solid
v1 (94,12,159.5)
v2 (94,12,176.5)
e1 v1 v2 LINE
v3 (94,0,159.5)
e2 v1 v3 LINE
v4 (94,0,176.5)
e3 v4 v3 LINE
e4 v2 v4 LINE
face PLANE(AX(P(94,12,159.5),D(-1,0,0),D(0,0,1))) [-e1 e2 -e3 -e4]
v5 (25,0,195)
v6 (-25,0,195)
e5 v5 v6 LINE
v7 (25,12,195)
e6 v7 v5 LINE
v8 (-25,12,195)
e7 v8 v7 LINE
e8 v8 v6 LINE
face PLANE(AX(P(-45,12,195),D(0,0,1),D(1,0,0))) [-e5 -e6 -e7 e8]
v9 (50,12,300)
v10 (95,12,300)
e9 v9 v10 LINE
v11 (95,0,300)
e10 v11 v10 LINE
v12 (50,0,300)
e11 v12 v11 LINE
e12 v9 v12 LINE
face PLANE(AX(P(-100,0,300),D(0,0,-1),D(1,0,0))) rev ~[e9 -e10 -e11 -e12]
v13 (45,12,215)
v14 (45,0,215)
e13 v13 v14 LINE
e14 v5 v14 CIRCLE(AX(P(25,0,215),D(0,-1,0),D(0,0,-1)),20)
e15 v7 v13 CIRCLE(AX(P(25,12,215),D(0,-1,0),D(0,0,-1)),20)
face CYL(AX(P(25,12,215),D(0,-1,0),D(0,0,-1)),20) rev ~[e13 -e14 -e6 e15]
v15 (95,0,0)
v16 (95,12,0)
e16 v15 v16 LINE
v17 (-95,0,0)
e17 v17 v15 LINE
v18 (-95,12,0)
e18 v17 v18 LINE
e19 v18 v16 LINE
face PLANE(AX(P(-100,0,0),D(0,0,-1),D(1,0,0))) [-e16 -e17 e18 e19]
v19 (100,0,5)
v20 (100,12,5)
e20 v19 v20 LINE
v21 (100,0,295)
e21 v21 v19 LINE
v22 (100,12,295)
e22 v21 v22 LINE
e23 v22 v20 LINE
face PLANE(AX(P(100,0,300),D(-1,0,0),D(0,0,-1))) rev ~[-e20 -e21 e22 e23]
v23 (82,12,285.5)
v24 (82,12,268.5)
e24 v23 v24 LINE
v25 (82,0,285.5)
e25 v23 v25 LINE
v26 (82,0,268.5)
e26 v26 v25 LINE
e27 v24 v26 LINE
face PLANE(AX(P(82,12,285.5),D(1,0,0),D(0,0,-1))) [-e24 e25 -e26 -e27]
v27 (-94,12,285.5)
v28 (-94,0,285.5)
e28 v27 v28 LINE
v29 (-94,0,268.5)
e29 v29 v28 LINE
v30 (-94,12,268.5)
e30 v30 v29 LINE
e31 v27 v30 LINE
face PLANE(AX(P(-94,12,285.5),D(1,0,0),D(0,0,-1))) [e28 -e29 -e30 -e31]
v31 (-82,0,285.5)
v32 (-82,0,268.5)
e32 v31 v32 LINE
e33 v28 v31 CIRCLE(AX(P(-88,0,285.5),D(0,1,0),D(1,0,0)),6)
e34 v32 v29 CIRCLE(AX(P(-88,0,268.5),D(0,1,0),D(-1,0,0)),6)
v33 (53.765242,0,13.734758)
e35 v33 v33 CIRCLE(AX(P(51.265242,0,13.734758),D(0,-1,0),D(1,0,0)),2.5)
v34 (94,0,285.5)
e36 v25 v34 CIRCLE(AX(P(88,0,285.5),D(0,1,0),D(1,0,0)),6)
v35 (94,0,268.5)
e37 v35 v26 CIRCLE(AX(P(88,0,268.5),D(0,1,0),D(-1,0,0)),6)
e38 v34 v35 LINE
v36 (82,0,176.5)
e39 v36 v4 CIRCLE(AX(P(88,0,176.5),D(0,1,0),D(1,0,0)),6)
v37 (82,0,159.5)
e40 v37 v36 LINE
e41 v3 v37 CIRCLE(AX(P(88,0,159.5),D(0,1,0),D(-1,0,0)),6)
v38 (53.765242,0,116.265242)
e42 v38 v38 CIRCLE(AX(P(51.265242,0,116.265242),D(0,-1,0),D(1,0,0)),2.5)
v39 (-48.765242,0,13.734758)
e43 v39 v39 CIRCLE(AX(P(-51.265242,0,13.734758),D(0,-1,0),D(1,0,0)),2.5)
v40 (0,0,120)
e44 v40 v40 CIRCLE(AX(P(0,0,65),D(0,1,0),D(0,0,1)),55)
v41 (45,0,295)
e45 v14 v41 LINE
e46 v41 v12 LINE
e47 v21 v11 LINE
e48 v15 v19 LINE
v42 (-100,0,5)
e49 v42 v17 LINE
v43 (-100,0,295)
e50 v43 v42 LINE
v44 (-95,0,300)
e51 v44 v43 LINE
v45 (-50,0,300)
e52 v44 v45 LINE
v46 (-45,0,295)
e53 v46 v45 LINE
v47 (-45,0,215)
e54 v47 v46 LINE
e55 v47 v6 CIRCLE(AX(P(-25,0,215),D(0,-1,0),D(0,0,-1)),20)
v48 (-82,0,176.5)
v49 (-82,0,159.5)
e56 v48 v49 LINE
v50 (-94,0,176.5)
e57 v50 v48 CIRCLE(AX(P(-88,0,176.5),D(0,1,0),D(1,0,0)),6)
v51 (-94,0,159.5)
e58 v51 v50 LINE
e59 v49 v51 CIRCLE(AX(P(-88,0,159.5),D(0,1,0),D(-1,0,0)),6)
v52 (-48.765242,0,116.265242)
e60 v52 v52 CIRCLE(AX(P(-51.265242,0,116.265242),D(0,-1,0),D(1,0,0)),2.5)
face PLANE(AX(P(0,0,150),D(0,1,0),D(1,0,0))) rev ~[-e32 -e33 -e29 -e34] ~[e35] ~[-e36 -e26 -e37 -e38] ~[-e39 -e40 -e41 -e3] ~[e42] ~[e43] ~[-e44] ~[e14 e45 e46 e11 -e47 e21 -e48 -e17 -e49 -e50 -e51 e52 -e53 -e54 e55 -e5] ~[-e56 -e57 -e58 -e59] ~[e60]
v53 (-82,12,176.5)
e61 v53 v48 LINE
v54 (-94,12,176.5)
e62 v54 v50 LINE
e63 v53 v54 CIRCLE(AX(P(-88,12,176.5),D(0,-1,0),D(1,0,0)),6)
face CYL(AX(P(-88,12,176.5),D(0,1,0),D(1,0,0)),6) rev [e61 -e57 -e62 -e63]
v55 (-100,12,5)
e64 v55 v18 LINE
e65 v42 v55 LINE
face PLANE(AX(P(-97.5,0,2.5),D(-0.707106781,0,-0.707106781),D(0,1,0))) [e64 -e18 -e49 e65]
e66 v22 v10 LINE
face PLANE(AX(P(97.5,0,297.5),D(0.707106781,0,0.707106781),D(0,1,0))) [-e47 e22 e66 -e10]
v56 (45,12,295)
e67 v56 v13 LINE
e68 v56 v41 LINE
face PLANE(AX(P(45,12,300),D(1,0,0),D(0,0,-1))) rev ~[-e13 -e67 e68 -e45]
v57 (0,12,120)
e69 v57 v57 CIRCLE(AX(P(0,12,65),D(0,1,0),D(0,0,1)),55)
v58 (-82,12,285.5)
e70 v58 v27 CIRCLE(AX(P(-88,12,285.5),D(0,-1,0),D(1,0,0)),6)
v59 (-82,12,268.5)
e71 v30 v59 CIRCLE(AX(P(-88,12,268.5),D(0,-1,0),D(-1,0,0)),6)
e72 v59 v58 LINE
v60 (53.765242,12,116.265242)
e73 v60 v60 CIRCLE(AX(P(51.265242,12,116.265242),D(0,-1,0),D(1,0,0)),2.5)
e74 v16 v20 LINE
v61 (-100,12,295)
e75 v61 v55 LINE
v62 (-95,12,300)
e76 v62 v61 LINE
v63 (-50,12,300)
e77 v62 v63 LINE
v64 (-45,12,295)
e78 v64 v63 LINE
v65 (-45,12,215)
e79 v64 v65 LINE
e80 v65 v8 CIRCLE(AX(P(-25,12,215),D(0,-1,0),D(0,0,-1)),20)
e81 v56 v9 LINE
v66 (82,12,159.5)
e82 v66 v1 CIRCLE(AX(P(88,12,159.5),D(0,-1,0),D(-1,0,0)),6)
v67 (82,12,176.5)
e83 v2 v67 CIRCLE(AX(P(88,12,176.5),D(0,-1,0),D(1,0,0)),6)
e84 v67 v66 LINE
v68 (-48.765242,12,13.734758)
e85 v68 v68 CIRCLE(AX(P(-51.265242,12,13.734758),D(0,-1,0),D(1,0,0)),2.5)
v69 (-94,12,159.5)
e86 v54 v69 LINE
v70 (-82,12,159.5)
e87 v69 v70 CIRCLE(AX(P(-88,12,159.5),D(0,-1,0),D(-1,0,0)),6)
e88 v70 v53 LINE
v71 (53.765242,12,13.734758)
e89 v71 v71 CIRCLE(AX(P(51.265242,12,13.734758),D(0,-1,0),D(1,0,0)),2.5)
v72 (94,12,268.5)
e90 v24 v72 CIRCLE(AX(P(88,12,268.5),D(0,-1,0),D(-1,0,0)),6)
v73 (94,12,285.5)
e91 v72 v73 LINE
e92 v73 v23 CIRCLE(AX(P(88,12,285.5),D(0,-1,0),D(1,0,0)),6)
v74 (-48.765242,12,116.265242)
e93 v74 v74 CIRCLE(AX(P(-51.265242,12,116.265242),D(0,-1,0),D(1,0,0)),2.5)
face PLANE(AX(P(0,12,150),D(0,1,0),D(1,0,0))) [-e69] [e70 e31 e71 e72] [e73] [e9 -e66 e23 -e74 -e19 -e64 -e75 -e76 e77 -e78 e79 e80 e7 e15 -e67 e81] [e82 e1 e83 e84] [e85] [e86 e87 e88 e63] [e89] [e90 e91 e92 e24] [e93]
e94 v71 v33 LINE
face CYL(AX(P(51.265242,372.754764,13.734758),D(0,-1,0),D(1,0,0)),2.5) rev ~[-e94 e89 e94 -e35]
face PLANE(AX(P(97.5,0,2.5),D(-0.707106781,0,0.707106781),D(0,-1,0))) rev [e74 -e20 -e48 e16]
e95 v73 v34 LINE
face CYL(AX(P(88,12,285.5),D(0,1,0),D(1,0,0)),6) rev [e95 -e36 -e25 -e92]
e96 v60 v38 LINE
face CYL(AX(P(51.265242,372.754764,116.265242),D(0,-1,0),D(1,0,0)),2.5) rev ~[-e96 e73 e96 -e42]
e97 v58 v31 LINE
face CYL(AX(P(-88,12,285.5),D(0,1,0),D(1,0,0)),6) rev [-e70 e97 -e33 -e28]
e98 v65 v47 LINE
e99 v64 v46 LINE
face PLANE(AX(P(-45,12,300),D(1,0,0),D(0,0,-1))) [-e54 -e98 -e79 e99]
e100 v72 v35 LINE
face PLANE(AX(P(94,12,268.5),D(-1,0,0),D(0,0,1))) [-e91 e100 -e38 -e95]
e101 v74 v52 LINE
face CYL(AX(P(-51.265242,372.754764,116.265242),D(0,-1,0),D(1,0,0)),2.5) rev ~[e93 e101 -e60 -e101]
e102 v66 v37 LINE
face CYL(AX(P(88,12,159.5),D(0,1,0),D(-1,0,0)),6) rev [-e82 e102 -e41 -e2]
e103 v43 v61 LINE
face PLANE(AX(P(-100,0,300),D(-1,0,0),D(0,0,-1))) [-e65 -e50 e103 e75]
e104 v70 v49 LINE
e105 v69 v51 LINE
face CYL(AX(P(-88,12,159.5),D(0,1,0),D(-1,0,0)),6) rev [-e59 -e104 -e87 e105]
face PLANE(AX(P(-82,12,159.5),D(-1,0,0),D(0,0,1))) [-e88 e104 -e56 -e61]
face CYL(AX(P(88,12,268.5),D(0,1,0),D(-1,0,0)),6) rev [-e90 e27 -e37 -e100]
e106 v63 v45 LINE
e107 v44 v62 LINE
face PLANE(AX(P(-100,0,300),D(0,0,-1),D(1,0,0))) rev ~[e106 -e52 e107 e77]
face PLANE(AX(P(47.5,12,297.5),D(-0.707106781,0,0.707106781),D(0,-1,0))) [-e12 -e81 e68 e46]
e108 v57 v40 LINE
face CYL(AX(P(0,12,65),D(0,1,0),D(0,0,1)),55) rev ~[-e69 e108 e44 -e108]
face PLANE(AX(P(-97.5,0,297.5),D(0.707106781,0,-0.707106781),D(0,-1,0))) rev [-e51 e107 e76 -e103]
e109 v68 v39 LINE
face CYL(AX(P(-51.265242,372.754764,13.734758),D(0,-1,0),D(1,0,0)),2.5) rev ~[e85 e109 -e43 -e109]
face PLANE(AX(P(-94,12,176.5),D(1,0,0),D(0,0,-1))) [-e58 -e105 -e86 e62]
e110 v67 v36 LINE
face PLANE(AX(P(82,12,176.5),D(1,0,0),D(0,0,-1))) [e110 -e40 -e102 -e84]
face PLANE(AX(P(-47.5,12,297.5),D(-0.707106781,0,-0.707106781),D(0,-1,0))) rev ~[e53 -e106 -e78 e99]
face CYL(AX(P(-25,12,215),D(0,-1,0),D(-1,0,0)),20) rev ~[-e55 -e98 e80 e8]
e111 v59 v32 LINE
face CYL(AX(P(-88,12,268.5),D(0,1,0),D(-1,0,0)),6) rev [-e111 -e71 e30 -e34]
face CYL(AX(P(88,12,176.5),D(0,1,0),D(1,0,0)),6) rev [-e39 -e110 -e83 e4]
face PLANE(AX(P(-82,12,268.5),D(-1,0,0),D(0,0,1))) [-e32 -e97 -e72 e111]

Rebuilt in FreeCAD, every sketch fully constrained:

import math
import FreeCAD as App
import Part
import Sketcher
Q = App.Units.Quantity


def edges_at(feature, points):
    """Names of the edges that pass closest to the given points."""
    edges = feature.Shape.Edges
    near = lambda p: min(range(len(edges)), key=lambda i: edges[i].distToShape(Part.Vertex(*p))[0])
    return sorted({f"Edge{near(p) + 1}" for p in points})

doc = App.newDocument("Part")
body = doc.addObject("PartDesign::Body", "Body")

# Sketch on XZ plane
sketch1 = body.newObject("Sketcher::SketchObject", "Sketch")
sketch1.AttachmentSupport = (doc.getObject("XZ_Plane"), [""])
sketch1.MapMode = "FlatFace"
sketch1.addGeometry([
    Part.LineSegment(App.Vector(-100, 0, 0), App.Vector(-100, 300, 0)),
    Part.LineSegment(App.Vector(-100, 300, 0), App.Vector(100, 300, 0)),
    Part.LineSegment(App.Vector(100, 300, 0), App.Vector(100, 0, 0)),
    Part.LineSegment(App.Vector(100, 0, 0), App.Vector(-100, 0, 0)),
], False)
sketch1.addConstraint([
    Sketcher.Constraint("Coincident", 0, 2, 1, 1),
    Sketcher.Constraint("Coincident", 1, 2, 2, 1),
    Sketcher.Constraint("Coincident", 2, 2, 3, 1),
    Sketcher.Constraint("Coincident", 3, 2, 0, 1),
    Sketcher.Constraint("Vertical", 0),
    Sketcher.Constraint("Horizontal", 1),
    Sketcher.Constraint("Vertical", 2),
    Sketcher.Constraint("Horizontal", 3),
    Sketcher.Constraint("Symmetric", 2, 2, 3, 2, -1, 1),
    Sketcher.Constraint("DistanceX", 1, 1, 1, 2, Q("200 mm")),
    Sketcher.Constraint("DistanceY", 0, 1, 0, 2, Q("300 mm")),
])
pad1 = body.newObject("PartDesign::Pad", "Pad")
pad1.Profile = sketch1
pad1.Length = 12
pad1.Reversed = True

# Sketch on XZ plane
sketch2 = body.newObject("Sketcher::SketchObject", "Sketch001")
sketch2.AttachmentSupport = (doc.getObject("XZ_Plane"), [""])
sketch2.MapMode = "FlatFace"
sketch2.AttachmentOffset = App.Placement(App.Vector(0, 0, -12), App.Rotation())
sketch2.addGeometry([
    Part.LineSegment(App.Vector(-45, 195, 0), App.Vector(-45, 300, 0)),
    Part.LineSegment(App.Vector(-45, 300, 0), App.Vector(45, 300, 0)),
    Part.LineSegment(App.Vector(45, 300, 0), App.Vector(45, 195, 0)),
    Part.LineSegment(App.Vector(45, 195, 0), App.Vector(-45, 195, 0)),
], False)
sketch2.addConstraint([
    Sketcher.Constraint("Coincident", 0, 2, 1, 1),
    Sketcher.Constraint("Coincident", 1, 2, 2, 1),
    Sketcher.Constraint("Coincident", 2, 2, 3, 1),
    Sketcher.Constraint("Coincident", 3, 2, 0, 1),
    Sketcher.Constraint("Vertical", 0),
    Sketcher.Constraint("Horizontal", 1),
    Sketcher.Constraint("Vertical", 2),
    Sketcher.Constraint("Horizontal", 3),
    Sketcher.Constraint("DistanceX", 1, 1, 1, 2, Q("90 mm")),
    Sketcher.Constraint("DistanceY", 0, 1, 0, 2, Q("105 mm")),
    Sketcher.Constraint("DistanceX", 0, 2, -1, 1, Q("45 mm")),
    Sketcher.Constraint("DistanceY", -1, 1, 0, 2, Q("300 mm")),
])
pocket1 = body.newObject("PartDesign::Pocket", "Pocket")
pocket1.Profile = sketch2
pocket1.Type = "UpToFirst"
pocket1.Reversed = True

# Sketch on XZ plane
sketch3 = body.newObject("Sketcher::SketchObject", "Sketch002")
sketch3.AttachmentSupport = (doc.getObject("XZ_Plane"), [""])
sketch3.MapMode = "FlatFace"
sketch3.AttachmentOffset = App.Placement(App.Vector(0, 0, -12), App.Rotation())
sketch3.addGeometry(Part.Circle(App.Vector(0, 65, 0), App.Vector(0, 0, 1), 55), False)
sketch3.addConstraint([
    Sketcher.Constraint("PointOnObject", 0, 3, -2),
    Sketcher.Constraint("Diameter", 0, Q("110 mm")),
    Sketcher.Constraint("DistanceY", -1, 1, 0, 3, Q("65 mm")),
])
pocket2 = body.newObject("PartDesign::Pocket", "Pocket001")
pocket2.Profile = sketch3
pocket2.Type = "UpToFirst"
pocket2.Reversed = True

# Sketch on XZ plane
sketch4 = body.newObject("Sketcher::SketchObject", "Sketch003")
sketch4.AttachmentSupport = (doc.getObject("XZ_Plane"), [""])
sketch4.MapMode = "FlatFace"
sketch4.AttachmentOffset = App.Placement(App.Vector(0, 0, -12), App.Rotation())
sketch4.addGeometry([
    Part.LineSegment(App.Vector(-82, 286, 0), App.Vector(-82, 268, 0)),
    Part.ArcOfCircle(Part.Circle(App.Vector(-88, 268, 0), App.Vector(0, 0, 1), 6), math.radians(180), math.radians(360)),
    Part.LineSegment(App.Vector(-94, 268, 0), App.Vector(-94, 286, 0)),
    Part.ArcOfCircle(Part.Circle(App.Vector(-88, 286, 0), App.Vector(0, 0, 1), 6), math.radians(0), math.radians(180)),
], False)
sketch4.addConstraint([
    Sketcher.Constraint("Tangent", 0, 2, 1, 2),
    Sketcher.Constraint("Tangent", 1, 1, 2, 1),
    Sketcher.Constraint("Tangent", 2, 2, 3, 2),
    Sketcher.Constraint("Tangent", 3, 1, 0, 1),
    Sketcher.Constraint("Vertical", 0),
    Sketcher.Constraint("Vertical", 2),
    Sketcher.Constraint("Radius", 1, Q("6 mm")),
    Sketcher.Constraint("DistanceY", 0, 2, 0, 1, Q("17 mm")),
    Sketcher.Constraint("DistanceX", 1, 3, -1, 1, Q("88 mm")),
    Sketcher.Constraint("DistanceY", -1, 1, 1, 3, Q("268.5 mm")),
])
pocket3 = body.newObject("PartDesign::Pocket", "Pocket002")
pocket3.Profile = sketch4
pocket3.Type = "UpToFirst"
pocket3.Reversed = True

# Sketch on XZ plane
sketch5 = body.newObject("Sketcher::SketchObject", "Sketch004")
sketch5.AttachmentSupport = (doc.getObject("XZ_Plane"), [""])
sketch5.MapMode = "FlatFace"
sketch5.AttachmentOffset = App.Placement(App.Vector(0, 0, -12), App.Rotation())
sketch5.addGeometry([
    Part.LineSegment(App.Vector(94, 286, 0), App.Vector(94, 268, 0)),
    Part.ArcOfCircle(Part.Circle(App.Vector(88, 268, 0), App.Vector(0, 0, 1), 6), math.radians(180), math.radians(360)),
    Part.LineSegment(App.Vector(82, 268, 0), App.Vector(82, 286, 0)),
    Part.ArcOfCircle(Part.Circle(App.Vector(88, 286, 0), App.Vector(0, 0, 1), 6), math.radians(0), math.radians(180)),
], False)
sketch5.addConstraint([
    Sketcher.Constraint("Tangent", 0, 2, 1, 2),
    Sketcher.Constraint("Tangent", 1, 1, 2, 1),
    Sketcher.Constraint("Tangent", 2, 2, 3, 2),
    Sketcher.Constraint("Tangent", 3, 1, 0, 1),
    Sketcher.Constraint("Vertical", 0),
    Sketcher.Constraint("Vertical", 2),
    Sketcher.Constraint("Radius", 1, Q("6 mm")),
    Sketcher.Constraint("DistanceY", 0, 2, 0, 1, Q("17 mm")),
    Sketcher.Constraint("DistanceX", -1, 1, 1, 3, Q("88 mm")),
    Sketcher.Constraint("DistanceY", -1, 1, 1, 3, Q("268.5 mm")),
])
pocket4 = body.newObject("PartDesign::Pocket", "Pocket003")
pocket4.Profile = sketch5
pocket4.Type = "UpToFirst"
pocket4.Reversed = True

# Sketch on XZ plane
sketch6 = body.newObject("Sketcher::SketchObject", "Sketch005")
sketch6.AttachmentSupport = (doc.getObject("XZ_Plane"), [""])
sketch6.MapMode = "FlatFace"
sketch6.AttachmentOffset = App.Placement(App.Vector(0, 0, -12), App.Rotation())
sketch6.addGeometry([
    Part.LineSegment(App.Vector(-94, 160, 0), App.Vector(-94, 176, 0)),
    Part.ArcOfCircle(Part.Circle(App.Vector(-88, 176, 0), App.Vector(0, 0, 1), 6), math.radians(0), math.radians(180)),
    Part.LineSegment(App.Vector(-82, 176, 0), App.Vector(-82, 160, 0)),
    Part.ArcOfCircle(Part.Circle(App.Vector(-88, 160, 0), App.Vector(0, 0, 1), 6), math.radians(180), math.radians(360)),
], False)
sketch6.addConstraint([
    Sketcher.Constraint("Tangent", 0, 2, 1, 2),
    Sketcher.Constraint("Tangent", 1, 1, 2, 1),
    Sketcher.Constraint("Tangent", 2, 2, 3, 2),
    Sketcher.Constraint("Tangent", 3, 1, 0, 1),
    Sketcher.Constraint("Vertical", 0),
    Sketcher.Constraint("Vertical", 2),
    Sketcher.Constraint("Radius", 1, Q("6 mm")),
    Sketcher.Constraint("DistanceY", 0, 1, 0, 2, Q("17 mm")),
    Sketcher.Constraint("DistanceX", 1, 3, -1, 1, Q("88 mm")),
    Sketcher.Constraint("DistanceY", -1, 1, 1, 3, Q("176.5 mm")),
])
pocket5 = body.newObject("PartDesign::Pocket", "Pocket004")
pocket5.Profile = sketch6
pocket5.Type = "UpToFirst"
pocket5.Reversed = True

# Sketch on XZ plane
sketch7 = body.newObject("Sketcher::SketchObject", "Sketch006")
sketch7.AttachmentSupport = (doc.getObject("XZ_Plane"), [""])
sketch7.MapMode = "FlatFace"
sketch7.AttachmentOffset = App.Placement(App.Vector(0, 0, -12), App.Rotation())
sketch7.addGeometry([
    Part.LineSegment(App.Vector(82, 160, 0), App.Vector(82, 176, 0)),
    Part.ArcOfCircle(Part.Circle(App.Vector(88, 176, 0), App.Vector(0, 0, 1), 6), math.radians(0), math.radians(180)),
    Part.LineSegment(App.Vector(94, 176, 0), App.Vector(94, 160, 0)),
    Part.ArcOfCircle(Part.Circle(App.Vector(88, 160, 0), App.Vector(0, 0, 1), 6), math.radians(180), math.radians(360)),
], False)
sketch7.addConstraint([
    Sketcher.Constraint("Tangent", 0, 2, 1, 2),
    Sketcher.Constraint("Tangent", 1, 1, 2, 1),
    Sketcher.Constraint("Tangent", 2, 2, 3, 2),
    Sketcher.Constraint("Tangent", 3, 1, 0, 1),
    Sketcher.Constraint("Vertical", 0),
    Sketcher.Constraint("Vertical", 2),
    Sketcher.Constraint("Radius", 1, Q("6 mm")),
    Sketcher.Constraint("DistanceY", 0, 1, 0, 2, Q("17 mm")),
    Sketcher.Constraint("DistanceX", -1, 1, 1, 3, Q("88 mm")),
    Sketcher.Constraint("DistanceY", -1, 1, 1, 3, Q("176.5 mm")),
])
pocket6 = body.newObject("PartDesign::Pocket", "Pocket005")
pocket6.Profile = sketch7
pocket6.Type = "UpToFirst"
pocket6.Reversed = True

# Sketch on XZ plane
sketch8 = body.newObject("Sketcher::SketchObject", "Sketch007")
sketch8.AttachmentSupport = (doc.getObject("XZ_Plane"), [""])
sketch8.MapMode = "FlatFace"
sketch8.AttachmentOffset = App.Placement(App.Vector(0, 0, -12), App.Rotation())
sketch8.addGeometry([
    Part.Circle(App.Vector(51.3, 116.3, 0), App.Vector(0, 0, 1), 2.5),
    Part.Circle(App.Vector(-51.3, 116.3, 0), App.Vector(0, 0, 1), 2.5),
    Part.Circle(App.Vector(51.3, 13.7, 0), App.Vector(0, 0, 1), 2.5),
    Part.Circle(App.Vector(-51.3, 13.7, 0), App.Vector(0, 0, 1), 2.5),
], False)
sketch8.addConstraint([
    Sketcher.Constraint("Equal", 0, 1),
    Sketcher.Constraint("Equal", 1, 2),
    Sketcher.Constraint("Equal", 2, 3),
    Sketcher.Constraint("Symmetric", 0, 3, 1, 3, -2),
    Sketcher.Constraint("Symmetric", 2, 3, 3, 3, -2),
    Sketcher.Constraint("Vertical", 0, 3, 2, 3),
    Sketcher.Constraint("Diameter", 0, Q("5 mm")),
    Sketcher.Constraint("DistanceX", -1, 1, 0, 3, Q("51.265242 mm")),
    Sketcher.Constraint("DistanceY", -1, 1, 0, 3, Q("116.265242 mm")),
    Sketcher.Constraint("DistanceY", -1, 1, 2, 3, Q("13.734758 mm")),
])
doc.recompute()
hole = body.newObject("PartDesign::Hole", "Hole")
hole.Profile = sketch8
hole.ThreadType = "None"
hole.Diameter = 5
hole.DepthType = "ThroughAll"
hole.Reversed = True
doc.recompute()

fillet = body.newObject("PartDesign::Fillet", "Fillet")
fillet.Base = (hole, edges_at(hole, [(-45, 6, 195), (45, 6, 195)]))
fillet.Radius = 20
doc.recompute()

chamfer = body.newObject("PartDesign::Chamfer", "Chamfer")
chamfer.Base = (fillet, edges_at(fillet, [
    (-45, 6, 300),
    (45, 6, 300),
    (-100, 6, 0),
    (100, 6, 0),
    (100, 6, 300),
    (-100, 6, 300),
]))
chamfer.Size = 5

doc.recompute()
